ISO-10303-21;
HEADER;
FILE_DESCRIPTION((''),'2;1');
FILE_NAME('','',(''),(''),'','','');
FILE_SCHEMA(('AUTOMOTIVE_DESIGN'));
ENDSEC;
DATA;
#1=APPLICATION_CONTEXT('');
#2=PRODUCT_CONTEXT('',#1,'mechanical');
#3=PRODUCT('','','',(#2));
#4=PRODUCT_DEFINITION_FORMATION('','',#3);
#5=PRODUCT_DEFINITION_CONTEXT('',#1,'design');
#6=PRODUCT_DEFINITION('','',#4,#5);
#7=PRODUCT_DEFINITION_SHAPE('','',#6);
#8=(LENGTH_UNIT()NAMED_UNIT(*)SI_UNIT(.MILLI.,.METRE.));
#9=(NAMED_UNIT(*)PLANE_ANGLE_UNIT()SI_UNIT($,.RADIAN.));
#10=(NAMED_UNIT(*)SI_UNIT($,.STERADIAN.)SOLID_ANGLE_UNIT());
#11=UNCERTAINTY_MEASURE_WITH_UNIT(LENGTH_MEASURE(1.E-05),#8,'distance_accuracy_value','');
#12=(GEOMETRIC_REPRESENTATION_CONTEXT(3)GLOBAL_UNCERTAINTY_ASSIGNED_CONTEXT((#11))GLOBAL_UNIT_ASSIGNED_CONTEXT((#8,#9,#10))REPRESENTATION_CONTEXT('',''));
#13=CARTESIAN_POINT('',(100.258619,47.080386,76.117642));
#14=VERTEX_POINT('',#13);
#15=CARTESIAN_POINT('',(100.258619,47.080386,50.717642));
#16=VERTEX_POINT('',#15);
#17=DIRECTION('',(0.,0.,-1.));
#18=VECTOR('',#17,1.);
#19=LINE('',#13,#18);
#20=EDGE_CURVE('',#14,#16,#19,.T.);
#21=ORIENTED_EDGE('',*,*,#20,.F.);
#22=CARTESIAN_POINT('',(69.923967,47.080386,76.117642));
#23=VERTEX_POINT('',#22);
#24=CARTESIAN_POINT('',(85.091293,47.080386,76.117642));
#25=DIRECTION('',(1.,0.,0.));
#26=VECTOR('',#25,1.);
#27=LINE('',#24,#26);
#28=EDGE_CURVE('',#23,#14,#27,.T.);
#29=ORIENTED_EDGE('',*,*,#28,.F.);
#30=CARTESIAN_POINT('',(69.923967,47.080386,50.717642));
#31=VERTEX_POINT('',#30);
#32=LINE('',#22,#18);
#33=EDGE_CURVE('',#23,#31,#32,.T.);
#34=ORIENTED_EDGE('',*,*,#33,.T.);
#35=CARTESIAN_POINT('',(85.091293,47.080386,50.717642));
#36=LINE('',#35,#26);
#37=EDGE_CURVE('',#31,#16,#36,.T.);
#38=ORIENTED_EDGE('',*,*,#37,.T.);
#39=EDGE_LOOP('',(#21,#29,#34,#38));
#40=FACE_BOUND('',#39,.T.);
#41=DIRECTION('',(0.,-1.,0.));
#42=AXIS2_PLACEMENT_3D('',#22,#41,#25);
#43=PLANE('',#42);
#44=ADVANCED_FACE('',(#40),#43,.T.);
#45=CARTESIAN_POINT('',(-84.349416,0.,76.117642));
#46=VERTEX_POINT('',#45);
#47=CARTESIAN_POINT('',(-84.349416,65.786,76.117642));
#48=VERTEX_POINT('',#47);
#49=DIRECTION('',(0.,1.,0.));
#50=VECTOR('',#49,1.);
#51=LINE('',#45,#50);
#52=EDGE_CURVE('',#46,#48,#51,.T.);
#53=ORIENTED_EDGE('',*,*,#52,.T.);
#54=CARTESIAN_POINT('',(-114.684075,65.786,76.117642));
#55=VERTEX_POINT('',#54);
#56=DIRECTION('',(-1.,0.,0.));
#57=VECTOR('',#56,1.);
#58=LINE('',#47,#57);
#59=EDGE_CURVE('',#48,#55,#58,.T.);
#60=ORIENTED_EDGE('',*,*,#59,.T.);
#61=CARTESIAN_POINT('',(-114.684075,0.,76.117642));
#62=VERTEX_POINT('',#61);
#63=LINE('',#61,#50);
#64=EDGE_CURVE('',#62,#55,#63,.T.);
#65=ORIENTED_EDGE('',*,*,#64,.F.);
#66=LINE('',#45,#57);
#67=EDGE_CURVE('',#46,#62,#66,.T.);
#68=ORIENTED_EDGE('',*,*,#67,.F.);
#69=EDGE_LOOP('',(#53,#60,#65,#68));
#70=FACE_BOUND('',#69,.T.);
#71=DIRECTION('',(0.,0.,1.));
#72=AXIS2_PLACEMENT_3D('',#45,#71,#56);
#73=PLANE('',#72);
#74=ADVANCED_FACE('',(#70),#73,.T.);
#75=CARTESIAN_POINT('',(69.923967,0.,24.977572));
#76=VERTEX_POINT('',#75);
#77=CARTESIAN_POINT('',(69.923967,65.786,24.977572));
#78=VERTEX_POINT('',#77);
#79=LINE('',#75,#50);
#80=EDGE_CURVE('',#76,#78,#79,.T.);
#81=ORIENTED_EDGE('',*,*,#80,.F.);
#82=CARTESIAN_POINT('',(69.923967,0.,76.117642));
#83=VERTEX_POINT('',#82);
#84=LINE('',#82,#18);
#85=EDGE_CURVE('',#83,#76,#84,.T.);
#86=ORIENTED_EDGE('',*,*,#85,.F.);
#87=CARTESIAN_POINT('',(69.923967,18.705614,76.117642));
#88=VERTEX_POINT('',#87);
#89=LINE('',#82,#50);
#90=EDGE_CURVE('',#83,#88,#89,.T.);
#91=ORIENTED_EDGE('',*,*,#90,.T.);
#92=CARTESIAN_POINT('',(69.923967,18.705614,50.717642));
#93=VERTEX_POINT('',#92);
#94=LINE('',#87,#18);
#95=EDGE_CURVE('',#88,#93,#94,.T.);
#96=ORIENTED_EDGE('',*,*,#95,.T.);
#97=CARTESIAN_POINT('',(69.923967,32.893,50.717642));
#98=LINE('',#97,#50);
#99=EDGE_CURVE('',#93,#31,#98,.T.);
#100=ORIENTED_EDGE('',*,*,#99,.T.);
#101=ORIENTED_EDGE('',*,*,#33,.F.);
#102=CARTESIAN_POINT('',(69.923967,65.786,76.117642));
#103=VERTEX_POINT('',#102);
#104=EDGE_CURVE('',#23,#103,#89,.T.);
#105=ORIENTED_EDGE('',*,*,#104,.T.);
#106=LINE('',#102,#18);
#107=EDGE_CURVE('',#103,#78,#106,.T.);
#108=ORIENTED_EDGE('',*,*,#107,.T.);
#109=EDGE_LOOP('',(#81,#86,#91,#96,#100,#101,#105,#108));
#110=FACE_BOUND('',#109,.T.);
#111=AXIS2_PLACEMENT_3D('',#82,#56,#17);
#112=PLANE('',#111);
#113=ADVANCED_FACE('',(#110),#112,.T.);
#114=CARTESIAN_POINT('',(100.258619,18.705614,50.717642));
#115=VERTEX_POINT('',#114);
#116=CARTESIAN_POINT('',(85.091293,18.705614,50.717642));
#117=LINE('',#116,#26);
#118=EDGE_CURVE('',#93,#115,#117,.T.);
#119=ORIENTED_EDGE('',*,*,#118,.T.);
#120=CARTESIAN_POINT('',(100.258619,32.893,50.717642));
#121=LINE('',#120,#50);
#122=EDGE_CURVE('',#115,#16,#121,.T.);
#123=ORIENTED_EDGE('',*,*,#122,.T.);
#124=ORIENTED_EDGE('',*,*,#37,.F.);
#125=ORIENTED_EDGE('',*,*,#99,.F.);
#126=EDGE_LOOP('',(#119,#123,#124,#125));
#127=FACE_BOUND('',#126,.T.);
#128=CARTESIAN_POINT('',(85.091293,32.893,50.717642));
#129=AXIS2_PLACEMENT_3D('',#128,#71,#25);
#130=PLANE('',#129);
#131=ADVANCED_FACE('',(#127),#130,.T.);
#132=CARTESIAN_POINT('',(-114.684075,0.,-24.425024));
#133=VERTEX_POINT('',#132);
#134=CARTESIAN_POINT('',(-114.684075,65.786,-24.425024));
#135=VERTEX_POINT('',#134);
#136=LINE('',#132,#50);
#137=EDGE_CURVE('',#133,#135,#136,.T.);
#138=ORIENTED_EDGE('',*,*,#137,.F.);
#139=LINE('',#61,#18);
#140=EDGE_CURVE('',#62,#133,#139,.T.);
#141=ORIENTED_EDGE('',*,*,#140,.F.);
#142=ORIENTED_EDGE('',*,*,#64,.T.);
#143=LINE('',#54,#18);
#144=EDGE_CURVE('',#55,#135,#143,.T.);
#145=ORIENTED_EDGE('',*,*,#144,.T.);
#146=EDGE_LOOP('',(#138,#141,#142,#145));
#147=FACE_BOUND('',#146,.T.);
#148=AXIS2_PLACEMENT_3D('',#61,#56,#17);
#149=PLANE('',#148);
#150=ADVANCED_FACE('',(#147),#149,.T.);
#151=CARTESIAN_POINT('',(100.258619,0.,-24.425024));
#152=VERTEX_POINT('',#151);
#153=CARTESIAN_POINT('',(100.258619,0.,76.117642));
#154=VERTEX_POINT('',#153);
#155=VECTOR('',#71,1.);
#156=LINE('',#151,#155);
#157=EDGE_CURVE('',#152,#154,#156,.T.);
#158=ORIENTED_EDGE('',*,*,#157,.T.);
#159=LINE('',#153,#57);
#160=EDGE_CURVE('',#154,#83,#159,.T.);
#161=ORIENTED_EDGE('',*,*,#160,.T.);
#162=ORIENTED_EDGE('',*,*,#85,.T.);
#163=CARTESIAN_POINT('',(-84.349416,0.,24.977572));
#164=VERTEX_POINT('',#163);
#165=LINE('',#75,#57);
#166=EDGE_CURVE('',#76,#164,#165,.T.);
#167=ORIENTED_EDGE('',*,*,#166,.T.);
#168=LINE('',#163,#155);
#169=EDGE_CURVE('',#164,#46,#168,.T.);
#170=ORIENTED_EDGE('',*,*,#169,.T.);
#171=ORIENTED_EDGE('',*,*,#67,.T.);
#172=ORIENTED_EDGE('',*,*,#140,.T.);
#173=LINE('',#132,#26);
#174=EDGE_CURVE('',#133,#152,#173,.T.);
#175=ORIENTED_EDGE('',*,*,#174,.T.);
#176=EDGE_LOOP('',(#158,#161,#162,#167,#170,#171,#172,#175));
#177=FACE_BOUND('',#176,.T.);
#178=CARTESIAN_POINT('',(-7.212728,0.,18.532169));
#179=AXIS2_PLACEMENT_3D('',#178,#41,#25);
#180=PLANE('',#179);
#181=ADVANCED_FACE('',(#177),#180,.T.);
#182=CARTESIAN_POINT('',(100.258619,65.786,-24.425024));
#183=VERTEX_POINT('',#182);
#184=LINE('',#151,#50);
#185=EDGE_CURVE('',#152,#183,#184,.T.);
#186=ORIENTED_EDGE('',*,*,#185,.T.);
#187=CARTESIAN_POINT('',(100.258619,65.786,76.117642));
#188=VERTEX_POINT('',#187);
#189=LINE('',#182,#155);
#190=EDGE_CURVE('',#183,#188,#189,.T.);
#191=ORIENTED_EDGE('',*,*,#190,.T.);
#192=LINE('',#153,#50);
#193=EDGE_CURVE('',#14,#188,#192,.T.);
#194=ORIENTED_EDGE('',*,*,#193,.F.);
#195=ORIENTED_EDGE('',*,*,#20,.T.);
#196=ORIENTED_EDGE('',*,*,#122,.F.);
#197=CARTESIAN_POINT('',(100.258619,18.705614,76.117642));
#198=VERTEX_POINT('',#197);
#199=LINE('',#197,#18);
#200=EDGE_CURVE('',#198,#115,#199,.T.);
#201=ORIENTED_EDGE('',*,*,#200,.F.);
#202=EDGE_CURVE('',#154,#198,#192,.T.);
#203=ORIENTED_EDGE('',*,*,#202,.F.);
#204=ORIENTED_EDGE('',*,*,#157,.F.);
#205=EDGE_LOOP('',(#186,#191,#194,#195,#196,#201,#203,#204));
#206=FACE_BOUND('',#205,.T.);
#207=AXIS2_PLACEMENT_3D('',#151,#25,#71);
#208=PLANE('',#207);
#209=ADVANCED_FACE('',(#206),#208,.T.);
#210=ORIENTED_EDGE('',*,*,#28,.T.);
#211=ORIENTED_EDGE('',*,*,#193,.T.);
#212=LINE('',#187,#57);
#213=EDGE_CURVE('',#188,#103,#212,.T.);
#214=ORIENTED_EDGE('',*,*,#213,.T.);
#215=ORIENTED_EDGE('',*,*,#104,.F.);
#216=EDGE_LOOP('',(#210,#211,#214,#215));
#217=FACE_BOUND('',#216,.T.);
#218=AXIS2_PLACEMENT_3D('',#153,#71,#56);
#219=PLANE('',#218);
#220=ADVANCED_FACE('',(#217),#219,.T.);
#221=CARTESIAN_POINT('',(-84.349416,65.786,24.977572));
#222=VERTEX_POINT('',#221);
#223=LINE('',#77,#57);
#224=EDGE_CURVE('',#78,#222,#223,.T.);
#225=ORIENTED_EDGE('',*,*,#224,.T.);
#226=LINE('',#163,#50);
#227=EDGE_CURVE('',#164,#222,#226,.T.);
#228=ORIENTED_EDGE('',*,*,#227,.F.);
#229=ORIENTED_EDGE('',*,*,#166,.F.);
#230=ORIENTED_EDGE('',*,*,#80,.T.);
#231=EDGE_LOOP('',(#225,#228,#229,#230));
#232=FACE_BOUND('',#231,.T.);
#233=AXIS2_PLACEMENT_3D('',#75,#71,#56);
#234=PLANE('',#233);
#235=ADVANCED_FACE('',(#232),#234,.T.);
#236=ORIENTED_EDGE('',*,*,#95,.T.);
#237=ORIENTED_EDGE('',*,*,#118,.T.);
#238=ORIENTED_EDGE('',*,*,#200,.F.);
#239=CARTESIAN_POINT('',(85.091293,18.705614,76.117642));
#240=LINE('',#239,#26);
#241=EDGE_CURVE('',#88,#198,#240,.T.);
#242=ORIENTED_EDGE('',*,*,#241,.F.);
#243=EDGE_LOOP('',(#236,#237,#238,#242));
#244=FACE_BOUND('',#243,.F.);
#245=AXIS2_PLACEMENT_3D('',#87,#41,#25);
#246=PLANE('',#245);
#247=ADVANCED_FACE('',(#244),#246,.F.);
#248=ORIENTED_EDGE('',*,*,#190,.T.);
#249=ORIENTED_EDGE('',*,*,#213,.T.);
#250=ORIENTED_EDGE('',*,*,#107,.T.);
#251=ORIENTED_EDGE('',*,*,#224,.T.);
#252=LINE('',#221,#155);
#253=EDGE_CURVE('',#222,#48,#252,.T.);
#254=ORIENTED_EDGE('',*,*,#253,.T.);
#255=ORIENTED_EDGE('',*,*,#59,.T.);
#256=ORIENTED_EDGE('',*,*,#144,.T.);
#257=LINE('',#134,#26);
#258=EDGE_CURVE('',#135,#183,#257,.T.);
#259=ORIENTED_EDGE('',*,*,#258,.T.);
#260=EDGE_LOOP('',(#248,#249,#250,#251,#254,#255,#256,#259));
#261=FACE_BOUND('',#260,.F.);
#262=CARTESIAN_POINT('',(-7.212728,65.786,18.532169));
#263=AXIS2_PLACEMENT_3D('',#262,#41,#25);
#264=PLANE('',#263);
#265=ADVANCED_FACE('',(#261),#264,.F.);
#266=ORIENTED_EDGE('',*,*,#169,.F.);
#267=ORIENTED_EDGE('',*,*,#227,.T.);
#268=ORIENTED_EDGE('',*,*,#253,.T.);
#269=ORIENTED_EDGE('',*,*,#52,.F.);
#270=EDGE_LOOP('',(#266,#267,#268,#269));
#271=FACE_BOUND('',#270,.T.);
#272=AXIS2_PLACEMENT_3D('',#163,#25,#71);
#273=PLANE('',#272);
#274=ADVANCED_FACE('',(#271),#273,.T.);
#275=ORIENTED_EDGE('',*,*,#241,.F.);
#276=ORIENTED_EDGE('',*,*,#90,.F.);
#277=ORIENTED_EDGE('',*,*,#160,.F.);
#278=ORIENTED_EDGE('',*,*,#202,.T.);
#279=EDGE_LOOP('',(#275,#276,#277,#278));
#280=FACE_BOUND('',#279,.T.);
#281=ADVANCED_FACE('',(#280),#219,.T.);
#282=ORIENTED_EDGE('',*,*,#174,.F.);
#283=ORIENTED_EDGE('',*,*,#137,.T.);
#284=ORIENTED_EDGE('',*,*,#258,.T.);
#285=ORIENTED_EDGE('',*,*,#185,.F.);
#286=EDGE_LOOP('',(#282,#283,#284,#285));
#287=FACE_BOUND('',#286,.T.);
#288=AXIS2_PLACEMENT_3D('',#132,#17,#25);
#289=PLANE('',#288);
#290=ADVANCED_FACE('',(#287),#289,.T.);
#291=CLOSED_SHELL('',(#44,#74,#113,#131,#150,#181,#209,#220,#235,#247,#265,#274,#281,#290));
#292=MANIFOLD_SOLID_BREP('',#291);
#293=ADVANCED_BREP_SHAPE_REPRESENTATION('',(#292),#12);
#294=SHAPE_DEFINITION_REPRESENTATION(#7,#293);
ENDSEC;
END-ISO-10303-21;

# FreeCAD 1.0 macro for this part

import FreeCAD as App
import Part
import Sketcher

V = App.Vector
Q = App.Units.Quantity


def add_polygon(sketch, points):
    """Adds a closed chain of lines whose ends are joined by coincident constraints."""
    first, n = sketch.GeometryCount, len(points)
    for a, b in zip(points, points[1:] + points[:1]):
        sketch.addGeometry(Part.LineSegment(App.Vector(*a, 0), App.Vector(*b, 0)), False)
    for i in range(n):
        sketch.addConstraint(Sketcher.Constraint("Coincident", first + i, 2, first + (i + 1) % n, 1))

doc = App.newDocument("Part")
body = doc.addObject("PartDesign::Body", "Body")

sketch1 = body.newObject("Sketcher::SketchObject", "Sketch")
sketch1.AttachmentSupport = (doc.getObject("XZ_Plane"), [""])
sketch1.MapMode = "FlatFace"
add_polygon(sketch1, [(-84, 76), (-115, 76), (-115, -24), (100, -24), (100, 76), (70, 76), (70, 25), (-84, 25)])
sketch1.addConstraint(Sketcher.Constraint("Horizontal", 0))
sketch1.addConstraint(Sketcher.Constraint("Vertical", 1))
sketch1.addConstraint(Sketcher.Constraint("Horizontal", 2))
sketch1.addConstraint(Sketcher.Constraint("Vertical", 3))
sketch1.addConstraint(Sketcher.Constraint("Horizontal", 4))
sketch1.addConstraint(Sketcher.Constraint("Vertical", 5))
sketch1.addConstraint(Sketcher.Constraint("Horizontal", 6))
sketch1.addConstraint(Sketcher.Constraint("Vertical", 7))
sketch1.addConstraint(Sketcher.Constraint("Horizontal", 0, 2, 3, 2))
sketch1.addConstraint(Sketcher.Constraint("DistanceX", 0, 2, 0, 1, 30.334659))
sketch1.addConstraint(Sketcher.Constraint("DistanceX", 4, 2, 4, 1, 30.334652))
sketch1.addConstraint(Sketcher.Constraint("DistanceY", 5, 2, 5, 1, 51.14007))
sketch1.addConstraint(Sketcher.Constraint("DistanceX", 2, 1, 2, 2, 214.942694))
sketch1.addConstraint(Sketcher.Constraint("DistanceY", 1, 2, 1, 1, 100.542666))
sketch1.addConstraint(Sketcher.Constraint("DistanceX", -1, 1, 2, 2, 100.258619))
sketch1.addConstraint(Sketcher.Constraint("DistanceY", -1, 1, 5, 2, 24.977572))
pad1 = body.newObject("PartDesign::Pad", "Pad")
pad1.Profile = sketch1
pad1.Length = Q("2.59 in")
pad1.Reversed = True

sketch2 = body.newObject("Sketcher::SketchObject", "Sketch001")
sketch2.AttachmentSupport = (doc.getObject("XY_Plane"), [""])
sketch2.MapMode = "FlatFace"
sketch2.AttachmentOffset = App.Placement(V(0, 0, 76.117642), App.Rotation())
add_polygon(sketch2, [(70, 47), (70, 19), (100, 19), (100, 47)])
sketch2.addConstraint(Sketcher.Constraint("Vertical", 0))
sketch2.addConstraint(Sketcher.Constraint("Horizontal", 1))
sketch2.addConstraint(Sketcher.Constraint("Vertical", 2))
sketch2.addConstraint(Sketcher.Constraint("Horizontal", 3))
sketch2.addConstraint(Sketcher.Constraint("DistanceX", 1, 1, 1, 2, 30.334652))
sketch2.addConstraint(Sketcher.Constraint("DistanceY", 0, 2, 0, 1, 28.374772))
sketch2.addConstraint(Sketcher.Constraint("DistanceX", -1, 1, 1, 2, 100.258619))
sketch2.addConstraint(Sketcher.Constraint("DistanceY", -1, 1, 0, 2, 18.705614))
pocket1 = body.newObject("PartDesign::Pocket", "Pocket")
pocket1.Profile = sketch2
pocket1.Length = Q("1 in")

doc.recompute()
